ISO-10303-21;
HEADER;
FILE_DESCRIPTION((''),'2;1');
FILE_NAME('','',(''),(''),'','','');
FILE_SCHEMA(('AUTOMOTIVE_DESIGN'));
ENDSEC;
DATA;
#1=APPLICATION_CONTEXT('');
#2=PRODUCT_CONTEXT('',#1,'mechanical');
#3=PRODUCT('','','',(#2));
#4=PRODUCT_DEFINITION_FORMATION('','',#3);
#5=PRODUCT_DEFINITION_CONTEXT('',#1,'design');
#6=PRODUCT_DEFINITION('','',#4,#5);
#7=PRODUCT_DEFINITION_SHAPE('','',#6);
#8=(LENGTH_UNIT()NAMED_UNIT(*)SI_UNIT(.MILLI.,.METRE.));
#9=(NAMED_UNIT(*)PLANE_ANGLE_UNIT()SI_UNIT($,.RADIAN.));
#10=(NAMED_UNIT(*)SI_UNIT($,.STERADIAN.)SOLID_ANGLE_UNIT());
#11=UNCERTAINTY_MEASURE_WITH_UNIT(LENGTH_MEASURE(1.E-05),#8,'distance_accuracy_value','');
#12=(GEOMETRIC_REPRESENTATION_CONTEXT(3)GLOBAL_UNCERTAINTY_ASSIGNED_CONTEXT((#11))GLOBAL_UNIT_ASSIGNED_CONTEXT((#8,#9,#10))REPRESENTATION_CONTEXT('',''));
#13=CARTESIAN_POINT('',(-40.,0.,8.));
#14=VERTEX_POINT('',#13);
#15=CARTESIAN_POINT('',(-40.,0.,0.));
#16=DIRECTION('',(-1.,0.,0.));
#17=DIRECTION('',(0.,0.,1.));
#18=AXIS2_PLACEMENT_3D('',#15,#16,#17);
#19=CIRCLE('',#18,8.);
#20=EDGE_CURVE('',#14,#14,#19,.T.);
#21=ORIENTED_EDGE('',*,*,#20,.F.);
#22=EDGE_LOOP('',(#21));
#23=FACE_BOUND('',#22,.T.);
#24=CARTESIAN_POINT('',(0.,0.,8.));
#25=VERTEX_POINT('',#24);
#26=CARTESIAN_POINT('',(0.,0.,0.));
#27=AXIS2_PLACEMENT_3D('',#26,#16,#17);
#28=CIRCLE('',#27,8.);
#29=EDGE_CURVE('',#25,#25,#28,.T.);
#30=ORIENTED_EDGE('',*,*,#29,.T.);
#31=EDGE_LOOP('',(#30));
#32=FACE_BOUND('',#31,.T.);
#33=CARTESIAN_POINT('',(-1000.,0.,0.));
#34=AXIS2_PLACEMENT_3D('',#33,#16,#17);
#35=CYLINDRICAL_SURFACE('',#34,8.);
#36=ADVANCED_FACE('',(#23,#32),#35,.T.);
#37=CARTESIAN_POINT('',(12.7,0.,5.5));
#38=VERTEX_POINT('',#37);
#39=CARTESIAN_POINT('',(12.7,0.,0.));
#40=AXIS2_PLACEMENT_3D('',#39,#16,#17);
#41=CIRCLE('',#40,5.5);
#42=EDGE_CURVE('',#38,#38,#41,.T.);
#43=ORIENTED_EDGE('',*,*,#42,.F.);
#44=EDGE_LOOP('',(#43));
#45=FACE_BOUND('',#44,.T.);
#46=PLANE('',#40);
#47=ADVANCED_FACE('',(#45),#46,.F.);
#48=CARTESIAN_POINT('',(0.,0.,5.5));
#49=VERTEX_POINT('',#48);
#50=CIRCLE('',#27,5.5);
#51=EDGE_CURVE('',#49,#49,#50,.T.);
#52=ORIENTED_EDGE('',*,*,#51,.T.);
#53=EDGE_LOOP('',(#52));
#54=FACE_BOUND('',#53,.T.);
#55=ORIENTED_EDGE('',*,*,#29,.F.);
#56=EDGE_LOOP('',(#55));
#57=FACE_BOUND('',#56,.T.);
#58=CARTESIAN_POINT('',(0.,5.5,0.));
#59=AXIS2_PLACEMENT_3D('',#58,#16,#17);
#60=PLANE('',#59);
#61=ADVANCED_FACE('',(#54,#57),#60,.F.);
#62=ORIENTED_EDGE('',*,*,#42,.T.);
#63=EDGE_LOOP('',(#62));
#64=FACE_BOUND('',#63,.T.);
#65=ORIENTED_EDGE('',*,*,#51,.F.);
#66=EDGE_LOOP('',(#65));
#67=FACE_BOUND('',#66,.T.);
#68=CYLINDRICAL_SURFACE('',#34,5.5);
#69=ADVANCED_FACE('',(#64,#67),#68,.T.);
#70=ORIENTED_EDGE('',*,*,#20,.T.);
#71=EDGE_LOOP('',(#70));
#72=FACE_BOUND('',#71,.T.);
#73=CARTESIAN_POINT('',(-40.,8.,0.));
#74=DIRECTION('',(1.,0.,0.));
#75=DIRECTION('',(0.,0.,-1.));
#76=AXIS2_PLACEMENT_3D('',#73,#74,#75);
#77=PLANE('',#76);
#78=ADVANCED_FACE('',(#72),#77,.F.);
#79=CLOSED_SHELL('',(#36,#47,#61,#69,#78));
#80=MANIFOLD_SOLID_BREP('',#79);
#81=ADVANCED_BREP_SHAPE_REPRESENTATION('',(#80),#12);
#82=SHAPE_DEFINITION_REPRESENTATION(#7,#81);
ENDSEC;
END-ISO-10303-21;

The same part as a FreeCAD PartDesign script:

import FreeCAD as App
import Part
import Sketcher
Q = App.Units.Quantity

doc = App.newDocument("Part")
body = doc.addObject("PartDesign::Body", "Body")

# Sketch on XY plane
sketch1 = body.newObject("Sketcher::SketchObject", "Sketch")
sketch1.AttachmentSupport = (doc.getObject("XY_Plane"), [""])
sketch1.MapMode = "FlatFace"
sketch1.addGeometry([
    Part.LineSegment(App.Vector(12.7, 0, 0), App.Vector(12.7, 5.5, 0)),  # 0
    Part.LineSegment(App.Vector(12.7, 5.5, 0), App.Vector(0, 5.5, 0)),  # 1
    Part.LineSegment(App.Vector(0, 5.5, 0), App.Vector(0, 8, 0)),  # 2
    Part.LineSegment(App.Vector(0, 8, 0), App.Vector(-40, 8, 0)),  # 3
    Part.LineSegment(App.Vector(-40, 8, 0), App.Vector(-40, 0, 0)),  # 4
    Part.LineSegment(App.Vector(-40, 0, 0), App.Vector(12.7, 0, 0)),  # 5
], False)
sketch1.addConstraint([
    Sketcher.Constraint("Coincident", 0, 2, 1, 1),
    Sketcher.Constraint("Coincident", 1, 2, 2, 1),
    Sketcher.Constraint("Coincident", 2, 2, 3, 1),
    Sketcher.Constraint("Coincident", 3, 2, 4, 1),
    Sketcher.Constraint("Coincident", 4, 2, 5, 1),
    Sketcher.Constraint("Coincident", 5, 2, 0, 1),
    Sketcher.Constraint("Vertical", 0),
    Sketcher.Constraint("Horizontal", 1),
    Sketcher.Constraint("Vertical", 2),
    Sketcher.Constraint("Horizontal", 3),
    Sketcher.Constraint("Vertical", 4),
    Sketcher.Constraint("Horizontal", 5),
    Sketcher.Constraint("PointOnObject", 1, 2, -2),
    Sketcher.Constraint("PointOnObject", 4, 2, -1),
    Sketcher.Constraint("DistanceX", 3, 2, 3, 1, Q("40 mm")),
    Sketcher.Constraint("DistanceY", 4, 2, 4, 1, Q("8 mm")),
    Sketcher.Constraint("DistanceX", 1, 2, 1, 1, Q("12.7 mm")),
    Sketcher.Constraint("DistanceY", 0, 1, 0, 2, Q("5.5 mm")),
])
revolution = body.newObject("PartDesign::Revolution", "Revolution")
revolution.Profile = sketch1
revolution.ReferenceAxis = (sketch1, ["H_Axis"])
revolution.Angle = 360

doc.recompute()
